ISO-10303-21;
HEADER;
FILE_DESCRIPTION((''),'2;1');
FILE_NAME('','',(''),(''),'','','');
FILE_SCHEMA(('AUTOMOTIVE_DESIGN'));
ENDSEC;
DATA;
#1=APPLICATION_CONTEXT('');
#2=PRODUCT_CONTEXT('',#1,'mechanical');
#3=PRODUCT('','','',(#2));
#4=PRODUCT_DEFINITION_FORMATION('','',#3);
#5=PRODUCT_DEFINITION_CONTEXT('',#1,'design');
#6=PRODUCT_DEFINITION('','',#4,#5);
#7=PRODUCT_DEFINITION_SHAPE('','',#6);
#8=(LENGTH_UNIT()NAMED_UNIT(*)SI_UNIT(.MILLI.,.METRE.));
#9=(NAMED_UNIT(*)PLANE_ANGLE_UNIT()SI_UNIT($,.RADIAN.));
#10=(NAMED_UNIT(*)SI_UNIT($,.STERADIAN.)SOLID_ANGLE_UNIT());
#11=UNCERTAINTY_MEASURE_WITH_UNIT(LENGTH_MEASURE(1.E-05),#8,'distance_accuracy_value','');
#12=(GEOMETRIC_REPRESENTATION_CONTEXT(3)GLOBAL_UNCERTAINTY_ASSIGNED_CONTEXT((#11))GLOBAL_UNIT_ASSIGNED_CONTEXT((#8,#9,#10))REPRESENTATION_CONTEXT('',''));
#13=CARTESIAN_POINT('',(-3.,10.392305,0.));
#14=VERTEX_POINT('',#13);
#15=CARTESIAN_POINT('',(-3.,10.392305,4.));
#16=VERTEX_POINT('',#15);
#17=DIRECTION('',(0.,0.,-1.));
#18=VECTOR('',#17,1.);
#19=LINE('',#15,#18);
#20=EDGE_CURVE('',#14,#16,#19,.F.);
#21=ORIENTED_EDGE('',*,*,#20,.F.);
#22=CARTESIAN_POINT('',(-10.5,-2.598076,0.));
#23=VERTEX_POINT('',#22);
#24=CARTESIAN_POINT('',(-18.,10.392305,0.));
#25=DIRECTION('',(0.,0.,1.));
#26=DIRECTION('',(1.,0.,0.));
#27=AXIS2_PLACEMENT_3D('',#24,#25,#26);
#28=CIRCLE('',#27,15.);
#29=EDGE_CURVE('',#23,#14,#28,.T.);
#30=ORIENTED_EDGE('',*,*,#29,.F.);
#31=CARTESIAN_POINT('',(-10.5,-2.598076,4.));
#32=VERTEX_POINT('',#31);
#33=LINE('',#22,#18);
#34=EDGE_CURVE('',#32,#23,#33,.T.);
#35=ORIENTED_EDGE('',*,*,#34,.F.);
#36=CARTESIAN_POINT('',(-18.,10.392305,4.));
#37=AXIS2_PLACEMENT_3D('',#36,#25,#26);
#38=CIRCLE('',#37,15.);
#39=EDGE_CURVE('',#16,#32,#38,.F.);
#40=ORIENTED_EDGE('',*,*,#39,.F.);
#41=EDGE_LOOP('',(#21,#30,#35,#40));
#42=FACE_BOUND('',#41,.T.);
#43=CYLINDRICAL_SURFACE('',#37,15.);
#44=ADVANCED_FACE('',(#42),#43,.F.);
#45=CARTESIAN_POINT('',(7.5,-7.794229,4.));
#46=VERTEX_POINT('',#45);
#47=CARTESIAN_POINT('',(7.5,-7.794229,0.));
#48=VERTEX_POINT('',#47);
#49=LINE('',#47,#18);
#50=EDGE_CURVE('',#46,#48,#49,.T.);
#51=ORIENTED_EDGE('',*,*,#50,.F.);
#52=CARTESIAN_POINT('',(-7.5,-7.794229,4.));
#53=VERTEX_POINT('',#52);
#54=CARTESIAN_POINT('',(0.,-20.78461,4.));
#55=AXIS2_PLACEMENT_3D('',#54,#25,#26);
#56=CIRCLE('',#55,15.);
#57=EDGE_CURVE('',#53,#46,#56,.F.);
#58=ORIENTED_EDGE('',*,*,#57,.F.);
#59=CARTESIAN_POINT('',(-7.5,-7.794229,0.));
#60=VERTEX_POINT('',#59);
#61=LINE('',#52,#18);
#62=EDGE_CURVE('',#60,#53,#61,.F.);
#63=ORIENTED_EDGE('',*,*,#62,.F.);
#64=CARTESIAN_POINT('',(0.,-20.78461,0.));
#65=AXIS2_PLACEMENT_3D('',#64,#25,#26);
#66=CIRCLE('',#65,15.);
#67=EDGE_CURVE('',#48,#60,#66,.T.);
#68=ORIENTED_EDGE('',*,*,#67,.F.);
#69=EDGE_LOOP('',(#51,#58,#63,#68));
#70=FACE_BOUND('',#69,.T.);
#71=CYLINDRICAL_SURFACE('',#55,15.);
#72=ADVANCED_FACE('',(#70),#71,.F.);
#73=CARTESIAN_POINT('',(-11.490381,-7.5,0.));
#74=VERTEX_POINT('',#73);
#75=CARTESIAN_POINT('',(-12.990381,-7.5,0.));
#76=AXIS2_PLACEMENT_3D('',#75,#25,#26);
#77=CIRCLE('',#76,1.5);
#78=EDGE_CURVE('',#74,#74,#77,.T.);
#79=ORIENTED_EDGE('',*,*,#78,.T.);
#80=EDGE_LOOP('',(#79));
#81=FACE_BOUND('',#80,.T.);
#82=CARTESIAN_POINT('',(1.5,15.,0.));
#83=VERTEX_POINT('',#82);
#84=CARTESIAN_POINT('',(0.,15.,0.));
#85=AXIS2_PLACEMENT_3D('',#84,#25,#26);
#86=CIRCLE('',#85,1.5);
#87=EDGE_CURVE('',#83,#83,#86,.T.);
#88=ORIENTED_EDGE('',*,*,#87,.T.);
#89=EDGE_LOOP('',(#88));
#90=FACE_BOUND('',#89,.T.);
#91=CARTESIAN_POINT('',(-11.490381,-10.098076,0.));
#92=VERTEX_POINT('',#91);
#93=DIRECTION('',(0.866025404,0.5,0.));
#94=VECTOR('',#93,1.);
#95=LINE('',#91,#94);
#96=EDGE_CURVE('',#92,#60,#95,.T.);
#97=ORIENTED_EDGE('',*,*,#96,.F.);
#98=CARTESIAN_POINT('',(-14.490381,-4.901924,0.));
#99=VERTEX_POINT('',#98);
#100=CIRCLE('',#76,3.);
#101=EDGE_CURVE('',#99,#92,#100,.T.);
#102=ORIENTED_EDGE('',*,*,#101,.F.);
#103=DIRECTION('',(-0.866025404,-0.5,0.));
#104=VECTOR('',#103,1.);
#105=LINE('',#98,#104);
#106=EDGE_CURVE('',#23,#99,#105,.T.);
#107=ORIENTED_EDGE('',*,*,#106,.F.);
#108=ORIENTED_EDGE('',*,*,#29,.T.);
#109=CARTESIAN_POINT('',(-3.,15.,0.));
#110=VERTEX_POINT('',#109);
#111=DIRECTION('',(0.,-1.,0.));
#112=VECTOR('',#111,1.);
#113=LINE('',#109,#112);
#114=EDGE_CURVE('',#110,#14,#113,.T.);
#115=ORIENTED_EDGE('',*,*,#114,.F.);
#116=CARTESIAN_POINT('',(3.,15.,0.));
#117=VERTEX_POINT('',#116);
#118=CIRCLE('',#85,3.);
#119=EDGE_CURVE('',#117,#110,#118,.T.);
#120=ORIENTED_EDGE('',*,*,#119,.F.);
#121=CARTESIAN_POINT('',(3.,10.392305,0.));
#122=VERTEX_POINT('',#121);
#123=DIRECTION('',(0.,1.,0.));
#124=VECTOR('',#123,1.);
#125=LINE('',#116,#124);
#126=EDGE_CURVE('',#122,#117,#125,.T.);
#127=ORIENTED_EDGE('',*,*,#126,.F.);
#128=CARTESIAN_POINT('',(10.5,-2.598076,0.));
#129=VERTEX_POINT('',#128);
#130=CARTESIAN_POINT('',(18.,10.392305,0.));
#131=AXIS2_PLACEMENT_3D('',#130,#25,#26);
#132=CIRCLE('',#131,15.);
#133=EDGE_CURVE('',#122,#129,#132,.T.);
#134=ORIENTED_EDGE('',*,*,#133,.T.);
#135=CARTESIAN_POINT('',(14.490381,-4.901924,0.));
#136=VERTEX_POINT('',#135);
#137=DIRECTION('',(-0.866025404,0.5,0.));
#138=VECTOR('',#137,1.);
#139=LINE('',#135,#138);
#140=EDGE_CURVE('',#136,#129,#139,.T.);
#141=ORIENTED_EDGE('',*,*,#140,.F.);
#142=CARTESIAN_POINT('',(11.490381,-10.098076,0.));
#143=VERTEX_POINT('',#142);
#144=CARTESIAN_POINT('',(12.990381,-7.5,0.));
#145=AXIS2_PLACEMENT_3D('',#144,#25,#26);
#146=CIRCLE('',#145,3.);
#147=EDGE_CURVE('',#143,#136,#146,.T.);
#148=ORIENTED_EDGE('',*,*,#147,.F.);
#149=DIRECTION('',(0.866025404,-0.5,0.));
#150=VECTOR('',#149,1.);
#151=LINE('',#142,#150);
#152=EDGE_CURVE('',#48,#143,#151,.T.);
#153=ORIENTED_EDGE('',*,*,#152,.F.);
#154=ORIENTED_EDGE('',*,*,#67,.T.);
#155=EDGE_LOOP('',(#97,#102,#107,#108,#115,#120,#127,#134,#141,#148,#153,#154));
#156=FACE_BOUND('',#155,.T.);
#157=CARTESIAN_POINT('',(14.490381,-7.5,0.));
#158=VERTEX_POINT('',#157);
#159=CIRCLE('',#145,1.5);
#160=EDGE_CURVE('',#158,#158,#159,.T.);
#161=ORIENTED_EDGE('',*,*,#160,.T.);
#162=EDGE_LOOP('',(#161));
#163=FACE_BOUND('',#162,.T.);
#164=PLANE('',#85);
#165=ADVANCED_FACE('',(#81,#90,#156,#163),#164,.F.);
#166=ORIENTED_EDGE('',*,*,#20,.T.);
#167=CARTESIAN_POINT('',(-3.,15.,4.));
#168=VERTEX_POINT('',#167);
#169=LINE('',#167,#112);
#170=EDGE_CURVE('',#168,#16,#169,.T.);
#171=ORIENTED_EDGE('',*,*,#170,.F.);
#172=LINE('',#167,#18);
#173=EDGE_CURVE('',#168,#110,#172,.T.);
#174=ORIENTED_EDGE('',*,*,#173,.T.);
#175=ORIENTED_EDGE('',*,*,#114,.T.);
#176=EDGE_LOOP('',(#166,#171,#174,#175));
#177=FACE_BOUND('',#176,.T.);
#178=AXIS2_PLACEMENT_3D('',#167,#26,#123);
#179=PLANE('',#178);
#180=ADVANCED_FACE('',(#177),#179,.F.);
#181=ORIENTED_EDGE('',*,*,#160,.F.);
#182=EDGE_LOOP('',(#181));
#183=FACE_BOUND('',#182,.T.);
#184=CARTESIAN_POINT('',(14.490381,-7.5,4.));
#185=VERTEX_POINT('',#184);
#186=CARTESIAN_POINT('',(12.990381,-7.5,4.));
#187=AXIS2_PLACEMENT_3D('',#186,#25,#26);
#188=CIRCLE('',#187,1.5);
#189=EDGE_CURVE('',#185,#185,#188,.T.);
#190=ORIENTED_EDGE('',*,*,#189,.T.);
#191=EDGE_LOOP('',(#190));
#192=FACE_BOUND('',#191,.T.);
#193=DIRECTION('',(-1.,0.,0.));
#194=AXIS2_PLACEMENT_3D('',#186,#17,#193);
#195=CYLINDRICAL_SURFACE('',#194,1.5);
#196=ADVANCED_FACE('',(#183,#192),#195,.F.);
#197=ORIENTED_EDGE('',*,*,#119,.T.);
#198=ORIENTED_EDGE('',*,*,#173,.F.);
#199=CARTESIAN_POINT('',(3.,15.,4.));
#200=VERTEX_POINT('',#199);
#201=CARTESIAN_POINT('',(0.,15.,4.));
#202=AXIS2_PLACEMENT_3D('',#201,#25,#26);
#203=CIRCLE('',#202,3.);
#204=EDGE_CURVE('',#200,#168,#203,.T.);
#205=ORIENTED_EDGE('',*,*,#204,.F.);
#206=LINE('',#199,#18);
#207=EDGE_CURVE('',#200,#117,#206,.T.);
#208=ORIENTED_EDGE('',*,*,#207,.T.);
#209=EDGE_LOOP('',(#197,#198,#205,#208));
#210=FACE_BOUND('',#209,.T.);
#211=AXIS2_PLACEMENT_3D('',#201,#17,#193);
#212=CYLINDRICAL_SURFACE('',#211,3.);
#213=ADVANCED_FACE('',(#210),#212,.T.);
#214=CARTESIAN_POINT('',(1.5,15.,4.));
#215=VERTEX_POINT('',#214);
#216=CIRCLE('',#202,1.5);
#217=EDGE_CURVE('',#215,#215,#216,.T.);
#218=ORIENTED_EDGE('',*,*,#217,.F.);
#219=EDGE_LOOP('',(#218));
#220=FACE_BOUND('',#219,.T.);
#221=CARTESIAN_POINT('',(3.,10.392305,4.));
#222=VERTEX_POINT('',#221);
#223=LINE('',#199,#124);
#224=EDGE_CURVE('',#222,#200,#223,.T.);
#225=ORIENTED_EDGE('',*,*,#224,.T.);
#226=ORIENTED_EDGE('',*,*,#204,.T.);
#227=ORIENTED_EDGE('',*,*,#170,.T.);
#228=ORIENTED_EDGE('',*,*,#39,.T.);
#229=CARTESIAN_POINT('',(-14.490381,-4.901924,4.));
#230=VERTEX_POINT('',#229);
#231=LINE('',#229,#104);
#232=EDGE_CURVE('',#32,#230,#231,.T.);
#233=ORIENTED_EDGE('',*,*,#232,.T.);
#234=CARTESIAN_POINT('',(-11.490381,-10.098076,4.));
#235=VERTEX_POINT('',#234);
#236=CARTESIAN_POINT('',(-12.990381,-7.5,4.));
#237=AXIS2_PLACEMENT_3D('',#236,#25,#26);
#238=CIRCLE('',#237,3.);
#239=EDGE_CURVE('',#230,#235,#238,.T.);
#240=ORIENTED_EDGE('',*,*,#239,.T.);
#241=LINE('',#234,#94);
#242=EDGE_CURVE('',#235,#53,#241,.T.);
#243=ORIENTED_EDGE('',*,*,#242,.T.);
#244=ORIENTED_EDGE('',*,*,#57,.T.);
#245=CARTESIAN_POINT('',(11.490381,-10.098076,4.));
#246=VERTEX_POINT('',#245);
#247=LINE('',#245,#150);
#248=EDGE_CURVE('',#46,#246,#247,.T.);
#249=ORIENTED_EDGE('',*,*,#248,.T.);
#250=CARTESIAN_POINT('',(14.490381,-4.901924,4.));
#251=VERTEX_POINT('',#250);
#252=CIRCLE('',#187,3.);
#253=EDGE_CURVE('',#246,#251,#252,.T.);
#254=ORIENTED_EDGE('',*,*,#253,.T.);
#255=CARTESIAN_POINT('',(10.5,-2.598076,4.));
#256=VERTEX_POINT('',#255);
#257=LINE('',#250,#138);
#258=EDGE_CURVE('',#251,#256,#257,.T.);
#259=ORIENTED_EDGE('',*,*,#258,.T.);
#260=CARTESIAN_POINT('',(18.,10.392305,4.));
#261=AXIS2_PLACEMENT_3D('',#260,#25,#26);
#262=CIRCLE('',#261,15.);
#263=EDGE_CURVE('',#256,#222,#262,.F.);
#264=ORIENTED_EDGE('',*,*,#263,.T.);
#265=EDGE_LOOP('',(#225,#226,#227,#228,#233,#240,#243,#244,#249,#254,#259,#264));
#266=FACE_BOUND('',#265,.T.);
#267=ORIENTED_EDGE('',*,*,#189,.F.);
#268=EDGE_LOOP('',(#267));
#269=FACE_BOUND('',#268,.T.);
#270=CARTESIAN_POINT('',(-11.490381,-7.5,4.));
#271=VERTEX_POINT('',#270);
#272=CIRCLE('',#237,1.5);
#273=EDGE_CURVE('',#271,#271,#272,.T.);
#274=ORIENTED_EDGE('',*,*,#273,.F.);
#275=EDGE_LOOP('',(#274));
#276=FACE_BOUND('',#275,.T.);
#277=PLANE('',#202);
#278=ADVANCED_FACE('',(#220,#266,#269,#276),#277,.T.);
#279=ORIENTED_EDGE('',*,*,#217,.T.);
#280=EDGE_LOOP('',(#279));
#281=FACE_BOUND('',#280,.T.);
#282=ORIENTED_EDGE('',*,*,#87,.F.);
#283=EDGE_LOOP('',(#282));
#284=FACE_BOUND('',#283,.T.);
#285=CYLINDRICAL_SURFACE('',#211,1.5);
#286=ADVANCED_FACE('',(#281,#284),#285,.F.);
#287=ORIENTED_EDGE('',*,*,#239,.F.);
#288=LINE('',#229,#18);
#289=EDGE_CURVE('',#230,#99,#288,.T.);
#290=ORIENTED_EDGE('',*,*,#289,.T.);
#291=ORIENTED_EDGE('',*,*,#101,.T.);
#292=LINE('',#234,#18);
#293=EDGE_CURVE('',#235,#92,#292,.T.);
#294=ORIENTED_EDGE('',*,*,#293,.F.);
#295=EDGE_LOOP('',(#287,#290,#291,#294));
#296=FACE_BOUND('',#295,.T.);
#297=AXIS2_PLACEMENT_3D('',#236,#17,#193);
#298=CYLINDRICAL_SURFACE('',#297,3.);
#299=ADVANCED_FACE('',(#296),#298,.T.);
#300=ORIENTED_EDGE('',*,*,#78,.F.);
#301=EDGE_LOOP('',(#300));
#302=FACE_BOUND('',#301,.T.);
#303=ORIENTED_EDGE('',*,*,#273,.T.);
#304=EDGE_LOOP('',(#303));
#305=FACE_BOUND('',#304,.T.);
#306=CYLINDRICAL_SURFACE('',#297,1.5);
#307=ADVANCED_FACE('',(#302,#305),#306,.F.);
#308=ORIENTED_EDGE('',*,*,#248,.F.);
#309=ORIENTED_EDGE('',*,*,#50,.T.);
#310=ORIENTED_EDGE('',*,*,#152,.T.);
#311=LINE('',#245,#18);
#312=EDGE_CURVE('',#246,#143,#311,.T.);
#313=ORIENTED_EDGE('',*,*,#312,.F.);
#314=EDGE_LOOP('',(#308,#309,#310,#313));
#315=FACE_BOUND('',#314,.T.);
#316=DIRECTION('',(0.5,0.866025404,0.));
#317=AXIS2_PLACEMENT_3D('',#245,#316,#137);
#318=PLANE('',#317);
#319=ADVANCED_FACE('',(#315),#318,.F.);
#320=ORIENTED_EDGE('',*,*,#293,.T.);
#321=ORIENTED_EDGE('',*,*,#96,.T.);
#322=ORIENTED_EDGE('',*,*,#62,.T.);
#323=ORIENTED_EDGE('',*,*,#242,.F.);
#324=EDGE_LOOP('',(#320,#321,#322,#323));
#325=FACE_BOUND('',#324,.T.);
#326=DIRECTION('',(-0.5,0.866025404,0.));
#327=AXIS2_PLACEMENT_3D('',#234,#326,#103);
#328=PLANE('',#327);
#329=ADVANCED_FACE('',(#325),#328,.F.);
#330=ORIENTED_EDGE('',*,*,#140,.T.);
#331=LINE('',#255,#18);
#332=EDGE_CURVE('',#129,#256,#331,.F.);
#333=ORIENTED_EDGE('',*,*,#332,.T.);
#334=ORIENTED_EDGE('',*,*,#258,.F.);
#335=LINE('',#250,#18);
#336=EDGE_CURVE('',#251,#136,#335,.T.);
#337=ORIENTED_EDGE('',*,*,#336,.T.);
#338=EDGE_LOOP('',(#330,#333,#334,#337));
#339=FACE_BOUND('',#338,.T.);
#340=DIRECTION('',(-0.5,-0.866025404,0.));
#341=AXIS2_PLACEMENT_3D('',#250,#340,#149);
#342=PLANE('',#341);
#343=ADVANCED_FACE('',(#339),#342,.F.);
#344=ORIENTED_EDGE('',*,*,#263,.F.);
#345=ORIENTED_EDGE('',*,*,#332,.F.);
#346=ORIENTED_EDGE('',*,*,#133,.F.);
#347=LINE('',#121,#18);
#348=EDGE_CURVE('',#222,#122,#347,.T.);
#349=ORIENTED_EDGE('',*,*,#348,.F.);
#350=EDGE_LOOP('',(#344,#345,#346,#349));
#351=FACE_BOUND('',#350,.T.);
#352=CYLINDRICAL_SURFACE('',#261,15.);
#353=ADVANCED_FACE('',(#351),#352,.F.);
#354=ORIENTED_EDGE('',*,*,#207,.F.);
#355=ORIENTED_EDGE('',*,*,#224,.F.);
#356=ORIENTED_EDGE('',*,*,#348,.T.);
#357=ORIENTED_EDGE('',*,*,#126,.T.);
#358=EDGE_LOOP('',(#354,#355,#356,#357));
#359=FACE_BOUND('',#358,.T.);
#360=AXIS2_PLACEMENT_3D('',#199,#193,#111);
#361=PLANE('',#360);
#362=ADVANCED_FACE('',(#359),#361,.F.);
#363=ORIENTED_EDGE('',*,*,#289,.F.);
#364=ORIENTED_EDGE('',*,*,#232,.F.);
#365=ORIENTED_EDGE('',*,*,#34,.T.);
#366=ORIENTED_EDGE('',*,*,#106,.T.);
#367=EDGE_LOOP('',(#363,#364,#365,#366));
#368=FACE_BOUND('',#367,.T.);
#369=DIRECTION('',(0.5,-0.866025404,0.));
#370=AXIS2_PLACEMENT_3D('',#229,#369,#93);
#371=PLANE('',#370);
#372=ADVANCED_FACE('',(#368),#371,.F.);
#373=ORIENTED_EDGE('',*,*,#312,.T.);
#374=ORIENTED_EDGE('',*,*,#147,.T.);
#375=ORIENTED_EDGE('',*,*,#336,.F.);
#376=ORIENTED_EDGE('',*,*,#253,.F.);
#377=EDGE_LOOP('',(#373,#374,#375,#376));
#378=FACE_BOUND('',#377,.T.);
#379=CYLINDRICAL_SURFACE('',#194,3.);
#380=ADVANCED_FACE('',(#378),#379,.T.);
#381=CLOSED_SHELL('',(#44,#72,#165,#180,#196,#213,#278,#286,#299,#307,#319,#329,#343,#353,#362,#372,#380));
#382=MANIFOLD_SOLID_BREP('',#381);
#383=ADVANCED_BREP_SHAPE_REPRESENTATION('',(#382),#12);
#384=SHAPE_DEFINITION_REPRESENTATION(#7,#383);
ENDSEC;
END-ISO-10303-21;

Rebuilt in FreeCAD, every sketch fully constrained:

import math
import FreeCAD as App
import Part
import Sketcher

V = App.Vector


def edges_at(feature, points):
    """Names of the edges that pass closest to the given points."""
    edges = feature.Shape.Edges
    near = lambda p: min(range(len(edges)), key=lambda i: edges[i].distToShape(Part.Vertex(*p))[0])
    return sorted({f"Edge{near(p) + 1}" for p in points})

doc = App.newDocument("Part")
params = doc.addObject("Spreadsheet::Sheet", "Params")
for row, (alias, value) in enumerate([
    ("sketch1_diameter", "3 mm"),
    ("sketch1_radius", "3 mm"),
    ("pad1_length", "4 mm"),
    ("fillet_radius", "15 mm"),
], start=1):
    params.set(f"A{row}", alias)
    params.set(f"B{row}", "=" + value)
    params.setAlias(f"B{row}", alias)

body = doc.addObject("PartDesign::Body", "Body")

# Sketch on XY plane
sketch1 = doc.addObject("Sketcher::SketchObject", "Sketch")
body.addObject(sketch1)
sketch1.AttachmentSupport = (doc.XY_Plane, [""])
sketch1.MapMode = "FlatFace"
sketch1.addGeometry(Part.LineSegment(V(-3, 15, 0), V(-3, 1.7, 0)), False)
sketch1.addGeometry(Part.LineSegment(V(-3, 1.7, 0), V(-14.5, -4.9, 0)), False)
sketch1.addGeometry(Part.ArcOfCircle(Part.Circle(V(-13, -7.5, 0), V(0, 0, 1), 3), math.radians(120), math.radians(300)), False)
sketch1.addGeometry(Part.LineSegment(V(-11.5, -10.1, 0), V(0, -3.5, 0)), False)
sketch1.addGeometry(Part.LineSegment(V(0, -3.5, 0), V(11.5, -10.1, 0)), False)
sketch1.addGeometry(Part.ArcOfCircle(Part.Circle(V(13, -7.5, 0), V(0, 0, 1), 3), math.radians(-120), math.radians(60)), False)
sketch1.addGeometry(Part.LineSegment(V(14.5, -4.9, 0), V(3, 1.7, 0)), False)
sketch1.addGeometry(Part.LineSegment(V(3, 1.7, 0), V(3, 15, 0)), False)
sketch1.addGeometry(Part.ArcOfCircle(Part.Circle(V(0, 15, 0), V(0, 0, 1), 3), math.radians(0), math.radians(180)), False)
sketch1.addGeometry(Part.Circle(V(-13, -7.5, 0), V(0, 0, 1), 1.5), False)
sketch1.addGeometry(Part.Circle(V(13, -7.5, 0), V(0, 0, 1), 1.5), False)
sketch1.addGeometry(Part.Circle(V(0, 15, 0), V(0, 0, 1), 1.5), False)
sketch1.addConstraint(Sketcher.Constraint("Coincident", 0, 2, 1, 1))
sketch1.addConstraint(Sketcher.Constraint("Tangent", 1, 2, 2, 1))
sketch1.addConstraint(Sketcher.Constraint("Tangent", 2, 2, 3, 1))
sketch1.addConstraint(Sketcher.Constraint("Coincident", 3, 2, 4, 1))
sketch1.addConstraint(Sketcher.Constraint("Tangent", 4, 2, 5, 1))
sketch1.addConstraint(Sketcher.Constraint("Tangent", 5, 2, 6, 1))
sketch1.addConstraint(Sketcher.Constraint("Coincident", 6, 2, 7, 1))
sketch1.addConstraint(Sketcher.Constraint("Tangent", 7, 2, 8, 1))
sketch1.addConstraint(Sketcher.Constraint("Tangent", 8, 2, 0, 1))
sketch1.addConstraint(Sketcher.Constraint("Vertical", 0))
sketch1.addConstraint(Sketcher.Constraint("Vertical", 7))
sketch1.addConstraint(Sketcher.Constraint("Coincident", 9, 3, 2, 3))
sketch1.addConstraint(Sketcher.Constraint("Coincident", 10, 3, 5, 3))
sketch1.addConstraint(Sketcher.Constraint("Coincident", 11, 3, 8, 3))
sketch1.addConstraint(Sketcher.Constraint("Equal", 2, 5))
sketch1.addConstraint(Sketcher.Constraint("Equal", 5, 8))
sketch1.addConstraint(Sketcher.Constraint("Equal", 9, 10))
sketch1.addConstraint(Sketcher.Constraint("Equal", 10, 11))
sketch1.addConstraint(Sketcher.Constraint("Symmetric", 2, 3, 5, 3, -2))
sketch1.addConstraint(Sketcher.Constraint("Symmetric", 0, 2, 6, 2, -2))
sketch1.addConstraint(Sketcher.Constraint("PointOnObject", 3, 2, -2))
sketch1.addConstraint(Sketcher.Constraint("Parallel", 1, 3))
sketch1.addConstraint(Sketcher.Constraint("Equal", 1, 3))
sketch1.addConstraint(Sketcher.Constraint("Diameter", 9, 3.0))
sketch1.addConstraint(Sketcher.Constraint("Radius", 2, 3.0))
sketch1.addConstraint(Sketcher.Constraint("DistanceY", -1, 1, 8, 3, 15.0))
sketch1.addConstraint(Sketcher.Constraint("DistanceY", 2, 3, -1, 1, 7.5))
sketch1.addConstraint(Sketcher.Constraint("DistanceY", 0, 2, 0, 1, 13.267949))
sketch1.setExpression("Constraints[23]", "Params.sketch1_diameter")
sketch1.setExpression("Constraints[24]", "Params.sketch1_radius")
pad1 = doc.addObject("PartDesign::Pad", "Pad")
body.addObject(pad1)
pad1.Profile = sketch1
pad1.setExpression("Length", "Params.pad1_length")
doc.recompute()

fillet = doc.addObject("PartDesign::Fillet", "Fillet")
body.addObject(fillet)
fillet.Base = (pad1, edges_at(pad1, [(-3, 1.732, 2), (3, 1.732, 2), (0, -3.464, 2)]))
fillet.setExpression("Radius", "Params.fillet_radius")

doc.recompute()
